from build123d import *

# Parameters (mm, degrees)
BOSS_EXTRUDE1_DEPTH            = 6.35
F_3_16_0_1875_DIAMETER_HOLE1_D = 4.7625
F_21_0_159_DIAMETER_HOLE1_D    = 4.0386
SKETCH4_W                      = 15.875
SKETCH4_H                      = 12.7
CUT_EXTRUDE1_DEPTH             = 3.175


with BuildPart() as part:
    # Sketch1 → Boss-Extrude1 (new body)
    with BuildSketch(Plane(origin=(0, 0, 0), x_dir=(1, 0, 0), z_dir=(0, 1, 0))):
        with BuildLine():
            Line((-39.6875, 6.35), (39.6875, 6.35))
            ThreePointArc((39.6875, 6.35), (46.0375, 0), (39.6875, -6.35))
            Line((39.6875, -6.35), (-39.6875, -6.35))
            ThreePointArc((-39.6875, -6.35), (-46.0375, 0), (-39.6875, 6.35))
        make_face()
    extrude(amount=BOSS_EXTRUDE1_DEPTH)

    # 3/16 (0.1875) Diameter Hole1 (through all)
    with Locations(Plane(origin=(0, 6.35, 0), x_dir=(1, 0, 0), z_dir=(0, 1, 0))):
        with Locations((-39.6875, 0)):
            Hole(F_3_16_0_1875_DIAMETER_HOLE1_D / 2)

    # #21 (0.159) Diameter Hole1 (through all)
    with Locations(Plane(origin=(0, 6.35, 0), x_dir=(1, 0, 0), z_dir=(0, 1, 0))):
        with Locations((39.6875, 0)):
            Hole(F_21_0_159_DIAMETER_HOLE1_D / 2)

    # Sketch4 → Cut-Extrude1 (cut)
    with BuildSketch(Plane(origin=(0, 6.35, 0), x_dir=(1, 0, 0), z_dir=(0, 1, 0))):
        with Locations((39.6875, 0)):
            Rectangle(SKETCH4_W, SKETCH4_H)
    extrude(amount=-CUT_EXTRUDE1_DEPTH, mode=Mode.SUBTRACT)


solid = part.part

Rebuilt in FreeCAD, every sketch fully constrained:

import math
import FreeCAD as App
import Part
import Sketcher

V = App.Vector
Q = App.Units.Quantity


def add_polygon(sketch, points):
    """Adds a closed chain of lines whose ends are joined by coincident constraints."""
    first, n = sketch.GeometryCount, len(points)
    for a, b in zip(points, points[1:] + points[:1]):
        sketch.addGeometry(Part.LineSegment(App.Vector(*a, 0), App.Vector(*b, 0)), False)
    for i in range(n):
        sketch.addConstraint(Sketcher.Constraint("Coincident", first + i, 2, first + (i + 1) % n, 1))

doc = App.newDocument("Part")
body = doc.addObject("PartDesign::Body", "Body")

sketch1 = body.newObject("Sketcher::SketchObject", "Sketch")
sketch1.AttachmentSupport = (doc.getObject("XZ_Plane"), [""])
sketch1.MapMode = "FlatFace"
sketch1.addGeometry([
    Part.LineSegment(V(40, -6, 0), V(-40, -6, 0)),
    Part.ArcOfCircle(Part.Circle(V(-40, 0, 0), V(0, 0, 1), 6), math.radians(90), math.radians(270)),
    Part.LineSegment(V(-40, 6, 0), V(40, 6, 0)),
    Part.ArcOfCircle(Part.Circle(V(40, 0, 0), V(0, 0, 1), 6), math.radians(-90), math.radians(90)),
], False)
sketch1.addConstraint([
    Sketcher.Constraint("Tangent", 0, 2, 1, 2),
    Sketcher.Constraint("Tangent", 1, 1, 2, 1),
    Sketcher.Constraint("Tangent", 2, 2, 3, 2),
    Sketcher.Constraint("Tangent", 3, 1, 0, 1),
    Sketcher.Constraint("Horizontal", 0),
    Sketcher.Constraint("Horizontal", 2),
    Sketcher.Constraint("Symmetric", 1, 3, 3, 3, -1, 1),
    Sketcher.Constraint("Radius", 1, Q("0.25 in")),
    Sketcher.Constraint("DistanceX", 0, 2, 0, 1, Q("3.125 in")),
])
pad1 = body.newObject("PartDesign::Pad", "Pad")
pad1.Profile = sketch1
pad1.Length = Q("0.25 in")
pad1.Reversed = True

sketch2 = body.newObject("Sketcher::SketchObject", "Sketch001")
sketch2.AttachmentSupport = (doc.getObject("XZ_Plane"), [""])
sketch2.MapMode = "FlatFace"
sketch2.AttachmentOffset = App.Placement(V(0, 0, -0.25 * 25.4), App.Rotation())
sketch2.addGeometry(Part.Circle(V(-39.7, 0, 0), V(0, 0, 1), 2.4), False)
sketch2.addConstraint([
    Sketcher.Constraint("PointOnObject", 0, 3, -1),
    Sketcher.Constraint("Diameter", 0, Q("0.1875 in")),
    Sketcher.Constraint("DistanceX", 0, 3, -1, 1, Q("1.5625 in")),
])
doc.recompute()
hole = body.newObject("PartDesign::Hole", "Hole")
hole.Profile = sketch2
hole.ThreadType = "None"
hole.Diameter = Q("0.1875 in")
hole.DepthType = "ThroughAll"
hole.Reversed = True

sketch3 = body.newObject("Sketcher::SketchObject", "Sketch002")
sketch3.AttachmentSupport = (doc.getObject("XZ_Plane"), [""])
sketch3.MapMode = "FlatFace"
sketch3.AttachmentOffset = App.Placement(V(0, 0, -0.25 * 25.4), App.Rotation())
sketch3.addGeometry(Part.Circle(V(39.7, 0, 0), V(0, 0, 1), 2), False)
sketch3.addConstraint([
    Sketcher.Constraint("PointOnObject", 0, 3, -1),
    Sketcher.Constraint("Diameter", 0, Q("0.159 in")),
    Sketcher.Constraint("DistanceX", -1, 1, 0, 3, Q("1.5625 in")),
])
doc.recompute()
hole2 = body.newObject("PartDesign::Hole", "Hole001")
hole2.Profile = sketch3
hole2.ThreadType = "None"
hole2.Diameter = Q("0.159 in")
hole2.DepthType = "ThroughAll"
hole2.Reversed = True

sketch4 = body.newObject("Sketcher::SketchObject", "Sketch003")
sketch4.AttachmentSupport = (doc.getObject("XZ_Plane"), [""])
sketch4.MapMode = "FlatFace"
sketch4.AttachmentOffset = App.Placement(V(0, 0, -0.25 * 25.4), App.Rotation())
add_polygon(sketch4, [(32, -6), (32, 6), (48, 6), (48, -6)])
sketch4.addConstraint([
    Sketcher.Constraint("Vertical", 0),
    Sketcher.Constraint("Horizontal", 1),
    Sketcher.Constraint("Vertical", 2),
    Sketcher.Constraint("Horizontal", 3),
    Sketcher.Constraint("DistanceY", 0, 1, 0, 2, Q("0.5 in")),
    Sketcher.Constraint("DistanceX", 1, 1, 1, 2, Q("0.625 in")),
    Sketcher.Constraint("DistanceX", -1, 1, 0, 2, Q("1.25 in")),
    Sketcher.Constraint("DistanceY", -1, 1, 0, 2, Q("0.25 in")),
])
pocket1 = body.newObject("PartDesign::Pocket", "Pocket")
pocket1.Profile = sketch4
pocket1.Length = Q("0.125 in")
pocket1.Reversed = True

doc.recompute()
